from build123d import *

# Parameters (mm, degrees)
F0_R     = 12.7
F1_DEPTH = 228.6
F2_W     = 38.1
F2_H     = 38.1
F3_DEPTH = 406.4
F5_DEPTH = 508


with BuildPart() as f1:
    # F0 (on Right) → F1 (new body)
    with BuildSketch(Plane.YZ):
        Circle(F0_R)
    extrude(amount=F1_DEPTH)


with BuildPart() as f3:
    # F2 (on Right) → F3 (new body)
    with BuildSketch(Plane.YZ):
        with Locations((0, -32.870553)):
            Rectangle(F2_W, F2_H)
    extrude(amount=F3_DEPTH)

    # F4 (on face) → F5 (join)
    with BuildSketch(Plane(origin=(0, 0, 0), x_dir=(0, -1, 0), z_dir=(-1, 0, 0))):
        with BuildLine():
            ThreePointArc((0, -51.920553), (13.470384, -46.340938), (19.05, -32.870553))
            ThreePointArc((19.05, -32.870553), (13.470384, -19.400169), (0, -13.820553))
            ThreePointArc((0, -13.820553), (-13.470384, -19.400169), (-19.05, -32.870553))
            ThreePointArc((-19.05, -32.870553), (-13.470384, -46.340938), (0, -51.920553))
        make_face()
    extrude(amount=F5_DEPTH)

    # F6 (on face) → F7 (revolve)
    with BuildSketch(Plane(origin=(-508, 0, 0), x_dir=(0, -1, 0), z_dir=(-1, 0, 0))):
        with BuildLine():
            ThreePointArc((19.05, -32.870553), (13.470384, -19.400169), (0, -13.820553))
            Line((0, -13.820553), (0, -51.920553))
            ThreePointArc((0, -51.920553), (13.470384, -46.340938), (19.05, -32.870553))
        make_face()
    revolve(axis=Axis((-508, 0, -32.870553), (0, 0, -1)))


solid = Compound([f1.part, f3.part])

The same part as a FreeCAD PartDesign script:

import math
import FreeCAD as App
import Part
import Sketcher

V = App.Vector
Q = App.Units.Quantity


def add_polygon(sketch, points):
    """Adds a closed chain of lines whose ends are joined by coincident constraints."""
    first, n = sketch.GeometryCount, len(points)
    for a, b in zip(points, points[1:] + points[:1]):
        sketch.addGeometry(Part.LineSegment(App.Vector(*a, 0), App.Vector(*b, 0)), False)
    for i in range(n):
        sketch.addConstraint(Sketcher.Constraint("Coincident", first + i, 2, first + (i + 1) % n, 1))

doc = App.newDocument("Part")
body = doc.addObject("PartDesign::Body", "Body")

# Sketch on YZ plane
sketch1 = body.newObject("Sketcher::SketchObject", "Sketch")
sketch1.AttachmentSupport = (doc.getObject("YZ_Plane"), [""])
sketch1.MapMode = "FlatFace"
sketch1.addGeometry(Part.Circle(V(0, 0, 0), V(0, 0, 1), 12.7), False)
sketch1.addConstraint(Sketcher.Constraint("Coincident", 0, 3, -1, 1))
sketch1.addConstraint(Sketcher.Constraint("Diameter", 0, Q("1 in")))
pad1 = body.newObject("PartDesign::Pad", "Pad")
pad1.Profile = sketch1
pad1.Length = Q("9 in")
body2 = doc.addObject("PartDesign::Body", "Body001")

# Sketch on YZ plane
sketch2 = body2.newObject("Sketcher::SketchObject", "Sketch001")
sketch2.AttachmentSupport = (doc.getObject("YZ_Plane001"), [""])
sketch2.MapMode = "FlatFace"
add_polygon(sketch2, [(-19.05, -13.820553), (-19.05, -51.920553), (19.05, -51.920553), (19.05, -13.820553)])  # lines 0-3
sketch2.addConstraint(Sketcher.Constraint("Vertical", 0))
sketch2.addConstraint(Sketcher.Constraint("Horizontal", 1))
sketch2.addConstraint(Sketcher.Constraint("Vertical", 2))
sketch2.addConstraint(Sketcher.Constraint("Horizontal", 3))
sketch2.addConstraint(Sketcher.Constraint("Equal", 3, 0))
sketch2.addConstraint(Sketcher.Constraint("DistanceX", 1, 1, 1, 2, Q("1.5 in")))
sketch2.addConstraint(Sketcher.Constraint("DistanceX", 0, 2, -1, 1, Q("0.75 in")))
sketch2.addConstraint(Sketcher.Constraint("DistanceY", 0, 2, -1, 1, 51.920553))
pad2 = body2.newObject("PartDesign::Pad", "Pad001")
pad2.Profile = sketch2
pad2.Length = Q("16 in")

# Sketch on YZ plane
sketch3 = body2.newObject("Sketcher::SketchObject", "Sketch002")
sketch3.AttachmentSupport = (doc.getObject("YZ_Plane001"), [""])
sketch3.MapMode = "FlatFace"
sketch3.addGeometry(Part.ArcOfCircle(Part.Circle(V(-0.000001, -32.870554, 0), V(0, 0, 1), 19.049999), math.radians(179.999997), math.radians(270.000003)), False)
sketch3.addGeometry(Part.ArcOfCircle(Part.Circle(V(0.000001, -32.870554, 0), V(0, 0, 1), 19.050001), math.radians(90.000002), math.radians(179.999998)), False)
sketch3.addGeometry(Part.ArcOfCircle(Part.Circle(V(-0.000001, -32.870554, 0), V(0, 0, 1), 19.050001), math.radians(0.000002), math.radians(89.999998)), False)
sketch3.addGeometry(Part.ArcOfCircle(Part.Circle(V(0.000001, -32.870554, 0), V(0, 0, 1), 19.049999), math.radians(-90.000003), math.radians(0.000003)), False)
sketch3.addConstraint(Sketcher.Constraint("Tangent", 0, 1, 1, 2))
sketch3.addConstraint(Sketcher.Constraint("Tangent", 1, 1, 2, 2))
sketch3.addConstraint(Sketcher.Constraint("Tangent", 2, 1, 3, 2))
sketch3.addConstraint(Sketcher.Constraint("Tangent", 3, 1, 0, 2))
sketch3.addConstraint(Sketcher.Constraint("Equal", 0, 1))
sketch3.addConstraint(Sketcher.Constraint("Symmetric", 0, 1, 2, 1, -2))
sketch3.addConstraint(Sketcher.Constraint("PointOnObject", 1, 1, -2))
sketch3.addConstraint(Sketcher.Constraint("PointOnObject", 3, 1, -2))
sketch3.addConstraint(Sketcher.Constraint("Horizontal", 3, 3, 0, 1))
sketch3.addConstraint(Sketcher.Constraint("Radius", 0, Q("0.75 in")))
sketch3.addConstraint(Sketcher.Constraint("DistanceY", 0, 3, -1, 1, 32.870554))
pad3 = body2.newObject("PartDesign::Pad", "Pad002")
pad3.Profile = sketch3
pad3.Length = Q("20 in")
pad3.Reversed = True

# Sketch on YZ plane
sketch4 = body2.newObject("Sketcher::SketchObject", "Sketch003")
sketch4.AttachmentSupport = (doc.getObject("YZ_Plane001"), [""])
sketch4.MapMode = "FlatFace"
sketch4.AttachmentOffset = App.Placement(V(0, 0, -20 * 25.4), App.Rotation())
sketch4.addGeometry(Part.ArcOfCircle(Part.Circle(V(0.000001, -32.870554, 0), V(0, 0, 1), 19.050001), math.radians(90.000002), math.radians(179.999998)), False)
sketch4.addGeometry(Part.LineSegment(V(0, -13.820553, 0), V(0, -51.920553, 0)), False)
sketch4.addGeometry(Part.ArcOfCircle(Part.Circle(V(-0.000001, -32.870554, 0), V(0, 0, 1), 19.049999), math.radians(179.999997), math.radians(270.000003)), False)
sketch4.addConstraint(Sketcher.Constraint("Coincident", 0, 1, 1, 1))
sketch4.addConstraint(Sketcher.Constraint("Coincident", 1, 2, 2, 2))
sketch4.addConstraint(Sketcher.Constraint("Tangent", 2, 1, 0, 2))
sketch4.addConstraint(Sketcher.Constraint("Vertical", 1))
sketch4.addConstraint(Sketcher.Constraint("Equal", 0, 2))
sketch4.addConstraint(Sketcher.Constraint("PointOnObject", 0, 3, -2))
sketch4.addConstraint(Sketcher.Constraint("PointOnObject", 0, 1, -2))
sketch4.addConstraint(Sketcher.Constraint("Horizontal", 0, 3, 2, 1))
sketch4.addConstraint(Sketcher.Constraint("Radius", 0, Q("0.75 in")))
sketch4.addConstraint(Sketcher.Constraint("DistanceY", 0, 3, -1, 1, 32.870554))
revolution = body2.newObject("PartDesign::Revolution", "Revolution")
revolution.Profile = sketch4
revolution.ReferenceAxis = (sketch4, ["V_Axis"])
revolution.Angle = 360

doc.recompute()
